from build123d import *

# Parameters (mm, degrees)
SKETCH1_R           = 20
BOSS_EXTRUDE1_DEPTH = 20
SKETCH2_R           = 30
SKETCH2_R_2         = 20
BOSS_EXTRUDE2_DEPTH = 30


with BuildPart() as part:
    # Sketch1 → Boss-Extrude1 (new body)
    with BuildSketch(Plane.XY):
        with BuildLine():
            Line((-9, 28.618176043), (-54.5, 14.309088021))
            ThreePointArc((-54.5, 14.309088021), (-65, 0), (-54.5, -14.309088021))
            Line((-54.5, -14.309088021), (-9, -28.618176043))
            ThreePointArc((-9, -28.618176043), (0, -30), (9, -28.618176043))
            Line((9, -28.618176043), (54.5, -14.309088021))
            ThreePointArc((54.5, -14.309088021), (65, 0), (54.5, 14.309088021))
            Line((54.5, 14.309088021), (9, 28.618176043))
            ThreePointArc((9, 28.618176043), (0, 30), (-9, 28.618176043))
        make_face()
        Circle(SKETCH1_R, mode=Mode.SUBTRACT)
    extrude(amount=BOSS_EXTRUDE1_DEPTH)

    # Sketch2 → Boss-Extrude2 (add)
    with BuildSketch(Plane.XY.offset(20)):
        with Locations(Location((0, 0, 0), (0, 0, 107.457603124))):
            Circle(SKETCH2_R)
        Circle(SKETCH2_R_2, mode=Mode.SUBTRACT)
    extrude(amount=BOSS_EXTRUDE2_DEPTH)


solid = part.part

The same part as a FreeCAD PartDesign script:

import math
import FreeCAD as App
import Part
import Sketcher

doc = App.newDocument("Part")
body = doc.addObject("PartDesign::Body", "Body")

# Sketch on XY plane
sketch1 = body.newObject("Sketcher::SketchObject", "Sketch")
sketch1.AttachmentSupport = (doc.getObject("XY_Plane"), [""])
sketch1.MapMode = "FlatFace"
sketch1.addGeometry([
    Part.LineSegment(App.Vector(-9, 29, 0), App.Vector(-54, 14, 0)),  # 0
    Part.ArcOfCircle(Part.Circle(App.Vector(-50, 0, 0), App.Vector(0, 0, 1), 15), math.radians(107), math.radians(253)),  # 1
    Part.LineSegment(App.Vector(-54, -14, 0), App.Vector(-9, -29, 0)),  # 2
    Part.ArcOfCircle(Part.Circle(App.Vector(0, 0, 0), App.Vector(0, 0, 1), 30), math.radians(-107), math.radians(-73)),  # 3
    Part.LineSegment(App.Vector(9, -29, 0), App.Vector(54, -14, 0)),  # 4
    Part.ArcOfCircle(Part.Circle(App.Vector(50, 0, 0), App.Vector(0, 0, 1), 15), math.radians(-73), math.radians(73)),  # 5
    Part.LineSegment(App.Vector(54, 14, 0), App.Vector(9, 29, 0)),  # 6
    Part.ArcOfCircle(Part.Circle(App.Vector(0, 0, 0), App.Vector(0, 0, 1), 30), math.radians(73), math.radians(107)),  # 7
    Part.Circle(App.Vector(0, 0, 0), App.Vector(0, 0, 1), 20),  # 8
], False)
sketch1.addConstraint([
    Sketcher.Constraint("Tangent", 0, 2, 1, 1),
    Sketcher.Constraint("Tangent", 1, 2, 2, 1),
    Sketcher.Constraint("Tangent", 2, 2, 3, 1),
    Sketcher.Constraint("Tangent", 3, 2, 4, 1),
    Sketcher.Constraint("Tangent", 4, 2, 5, 1),
    Sketcher.Constraint("Tangent", 5, 2, 6, 1),
    Sketcher.Constraint("Tangent", 6, 2, 7, 1),
    Sketcher.Constraint("Tangent", 7, 2, 0, 1),
    Sketcher.Constraint("Coincident", 3, 3, -1, 1),
    Sketcher.Constraint("Coincident", 7, 3, -1, 1),
    Sketcher.Constraint("Coincident", 8, 3, -1, 1),
    Sketcher.Constraint("Equal", 1, 5),
    Sketcher.Constraint("Equal", 3, 7),
    Sketcher.Constraint("Symmetric", 1, 3, 5, 3, -1, 1),
    Sketcher.Constraint("PointOnObject", 1, 3, -1),
    Sketcher.Constraint("Diameter", 8, 40.0),
    Sketcher.Constraint("Radius", 1, 15.0),
    Sketcher.Constraint("Radius", 3, 30.0),
    Sketcher.Constraint("DistanceX", 1, 3, -1, 1, 50.0),
])
pad1 = body.newObject("PartDesign::Pad", "Pad")
pad1.Profile = sketch1
pad1.Length = 20

# Sketch on XY plane
sketch2 = body.newObject("Sketcher::SketchObject", "Sketch001")
sketch2.AttachmentSupport = (doc.getObject("XY_Plane"), [""])
sketch2.MapMode = "FlatFace"
sketch2.AttachmentOffset = App.Placement(App.Vector(0, 0, 20), App.Rotation())
sketch2.addGeometry([
    Part.Circle(App.Vector(0, 0, 0), App.Vector(0, 0, 1), 30),
    Part.Circle(App.Vector(0, 0, 0), App.Vector(0, 0, 1), 20),
], False)
sketch2.addConstraint([
    Sketcher.Constraint("Coincident", 0, 3, -1, 1),
    Sketcher.Constraint("Coincident", 1, 3, -1, 1),
    Sketcher.Constraint("Diameter", 0, 60.0),
    Sketcher.Constraint("Diameter", 1, 40.0),
])
pad2 = body.newObject("PartDesign::Pad", "Pad001")
pad2.Profile = sketch2
pad2.Length = 30

doc.recompute()
